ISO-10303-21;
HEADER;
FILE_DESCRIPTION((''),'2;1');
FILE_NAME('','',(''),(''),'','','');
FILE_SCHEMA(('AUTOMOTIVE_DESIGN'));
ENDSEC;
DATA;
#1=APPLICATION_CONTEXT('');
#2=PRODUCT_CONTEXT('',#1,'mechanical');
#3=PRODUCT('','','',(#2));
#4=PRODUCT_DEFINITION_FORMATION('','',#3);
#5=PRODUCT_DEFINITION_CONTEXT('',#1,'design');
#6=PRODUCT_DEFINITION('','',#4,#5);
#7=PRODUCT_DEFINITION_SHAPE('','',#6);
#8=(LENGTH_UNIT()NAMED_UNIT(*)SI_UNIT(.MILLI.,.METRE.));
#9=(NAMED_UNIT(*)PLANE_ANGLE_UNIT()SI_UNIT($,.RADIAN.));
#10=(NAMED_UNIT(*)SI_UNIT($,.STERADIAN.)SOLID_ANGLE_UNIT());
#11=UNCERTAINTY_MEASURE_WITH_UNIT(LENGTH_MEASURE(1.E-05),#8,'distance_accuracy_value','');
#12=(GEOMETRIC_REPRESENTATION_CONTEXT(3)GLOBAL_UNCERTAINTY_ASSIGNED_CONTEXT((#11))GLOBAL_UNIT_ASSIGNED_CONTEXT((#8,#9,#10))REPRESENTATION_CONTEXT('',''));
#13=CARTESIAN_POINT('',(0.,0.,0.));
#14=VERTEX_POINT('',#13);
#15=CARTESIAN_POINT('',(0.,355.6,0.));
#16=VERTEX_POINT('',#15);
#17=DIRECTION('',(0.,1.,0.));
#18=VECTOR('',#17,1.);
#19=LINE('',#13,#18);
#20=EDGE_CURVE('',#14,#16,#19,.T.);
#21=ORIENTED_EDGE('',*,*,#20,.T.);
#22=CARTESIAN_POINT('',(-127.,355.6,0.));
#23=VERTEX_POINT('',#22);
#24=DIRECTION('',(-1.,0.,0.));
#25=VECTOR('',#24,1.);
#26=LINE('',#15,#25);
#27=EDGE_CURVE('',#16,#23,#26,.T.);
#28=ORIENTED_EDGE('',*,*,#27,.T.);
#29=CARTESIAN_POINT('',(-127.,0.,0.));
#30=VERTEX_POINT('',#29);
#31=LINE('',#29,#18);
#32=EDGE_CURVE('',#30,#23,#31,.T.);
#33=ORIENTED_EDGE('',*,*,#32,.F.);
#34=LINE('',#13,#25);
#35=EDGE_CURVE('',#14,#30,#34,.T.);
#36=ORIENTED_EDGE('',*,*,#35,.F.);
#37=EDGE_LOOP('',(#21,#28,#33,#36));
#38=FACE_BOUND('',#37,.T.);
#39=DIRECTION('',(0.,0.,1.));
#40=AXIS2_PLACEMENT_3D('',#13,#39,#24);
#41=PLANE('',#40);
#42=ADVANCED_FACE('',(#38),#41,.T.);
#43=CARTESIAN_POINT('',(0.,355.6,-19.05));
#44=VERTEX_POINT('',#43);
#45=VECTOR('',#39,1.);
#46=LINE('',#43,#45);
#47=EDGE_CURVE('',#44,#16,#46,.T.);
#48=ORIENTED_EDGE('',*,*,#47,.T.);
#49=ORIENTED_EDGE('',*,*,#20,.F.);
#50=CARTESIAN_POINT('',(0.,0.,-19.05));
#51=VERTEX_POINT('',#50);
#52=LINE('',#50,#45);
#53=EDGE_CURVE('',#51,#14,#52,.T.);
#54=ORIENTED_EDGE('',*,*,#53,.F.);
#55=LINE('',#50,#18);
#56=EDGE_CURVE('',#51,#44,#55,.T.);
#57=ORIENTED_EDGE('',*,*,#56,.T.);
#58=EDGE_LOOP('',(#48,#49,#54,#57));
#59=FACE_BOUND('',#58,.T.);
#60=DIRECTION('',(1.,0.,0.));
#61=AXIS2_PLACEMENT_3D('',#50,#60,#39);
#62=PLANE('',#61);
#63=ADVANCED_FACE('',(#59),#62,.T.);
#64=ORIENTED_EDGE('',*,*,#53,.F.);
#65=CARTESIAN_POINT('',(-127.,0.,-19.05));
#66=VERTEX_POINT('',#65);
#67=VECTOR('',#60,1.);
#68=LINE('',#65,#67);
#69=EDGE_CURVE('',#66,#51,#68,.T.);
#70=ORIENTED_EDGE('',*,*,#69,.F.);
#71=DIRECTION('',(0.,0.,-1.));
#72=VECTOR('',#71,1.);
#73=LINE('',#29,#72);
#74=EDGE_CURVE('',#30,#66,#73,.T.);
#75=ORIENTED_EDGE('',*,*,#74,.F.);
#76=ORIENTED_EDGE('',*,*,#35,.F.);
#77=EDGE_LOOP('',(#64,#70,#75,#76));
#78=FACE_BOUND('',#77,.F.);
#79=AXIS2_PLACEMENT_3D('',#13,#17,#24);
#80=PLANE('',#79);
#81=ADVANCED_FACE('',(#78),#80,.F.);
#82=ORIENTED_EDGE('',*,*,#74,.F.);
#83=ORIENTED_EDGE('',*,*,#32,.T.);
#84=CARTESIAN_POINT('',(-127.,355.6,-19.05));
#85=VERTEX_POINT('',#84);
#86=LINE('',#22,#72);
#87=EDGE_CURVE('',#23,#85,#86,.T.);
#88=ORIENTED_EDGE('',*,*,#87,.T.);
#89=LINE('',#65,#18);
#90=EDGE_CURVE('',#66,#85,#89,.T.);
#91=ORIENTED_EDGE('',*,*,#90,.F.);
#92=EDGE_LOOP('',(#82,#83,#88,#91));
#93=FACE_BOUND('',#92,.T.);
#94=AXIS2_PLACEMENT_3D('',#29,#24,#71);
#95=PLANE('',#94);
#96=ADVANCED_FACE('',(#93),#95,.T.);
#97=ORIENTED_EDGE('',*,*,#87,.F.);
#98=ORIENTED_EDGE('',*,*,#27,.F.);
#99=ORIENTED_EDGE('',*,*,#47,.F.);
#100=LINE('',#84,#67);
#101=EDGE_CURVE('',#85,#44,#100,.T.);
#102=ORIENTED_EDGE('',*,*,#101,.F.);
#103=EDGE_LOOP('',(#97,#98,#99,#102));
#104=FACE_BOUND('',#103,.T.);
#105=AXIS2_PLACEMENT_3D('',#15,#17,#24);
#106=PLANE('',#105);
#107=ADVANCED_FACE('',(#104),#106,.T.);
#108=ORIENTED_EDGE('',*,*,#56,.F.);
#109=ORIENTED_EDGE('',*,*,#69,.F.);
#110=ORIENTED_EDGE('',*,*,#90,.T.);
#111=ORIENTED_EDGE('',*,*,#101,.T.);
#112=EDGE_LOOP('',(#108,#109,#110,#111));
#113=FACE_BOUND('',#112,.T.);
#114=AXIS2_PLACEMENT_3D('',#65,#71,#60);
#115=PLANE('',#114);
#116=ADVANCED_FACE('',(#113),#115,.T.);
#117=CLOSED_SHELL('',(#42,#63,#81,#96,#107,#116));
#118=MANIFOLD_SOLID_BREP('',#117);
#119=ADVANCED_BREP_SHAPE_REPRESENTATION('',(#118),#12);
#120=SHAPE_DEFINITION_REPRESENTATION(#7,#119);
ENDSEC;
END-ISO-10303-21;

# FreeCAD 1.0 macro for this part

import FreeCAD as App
import Part
import Sketcher
from FreeCAD import Vector
Q = App.Units.Quantity


def add_polygon(sketch, points):
    """Adds a closed chain of lines whose ends are joined by coincident constraints."""
    first, n = sketch.GeometryCount, len(points)
    for a, b in zip(points, points[1:] + points[:1]):
        sketch.addGeometry(Part.LineSegment(App.Vector(*a, 0), App.Vector(*b, 0)), False)
    for i in range(n):
        sketch.addConstraint(Sketcher.Constraint("Coincident", first + i, 2, first + (i + 1) % n, 1))

doc = App.newDocument("Part")
params = doc.addObject("Spreadsheet::Sheet", "Params")
for row, (alias, value) in enumerate([
    ("sketch1_width", "5 in"),
    ("sketch1_height", "0.75 in"),
    ("pad1_length", "14 in"),
], start=1):
    params.set(f"A{row}", alias)
    params.set(f"B{row}", "=" + value)
    params.setAlias(f"B{row}", alias)

body = doc.addObject("PartDesign::Body", "Body")

# Sketch on XZ plane
sketch1 = doc.addObject("Sketcher::SketchObject", "Sketch")
body.addObject(sketch1)
sketch1.AttachmentSupport = (doc.XZ_Plane, [""])
sketch1.MapMode = "FlatFace"
add_polygon(sketch1, [(-127, 0), (0, 0), (0, -19), (-127, -19)])  # lines 0-3
sketch1.addConstraint(Sketcher.Constraint("Horizontal", 0))
sketch1.addConstraint(Sketcher.Constraint("Vertical", 1))
sketch1.addConstraint(Sketcher.Constraint("Horizontal", 2))
sketch1.addConstraint(Sketcher.Constraint("Vertical", 3))
sketch1.addConstraint(Sketcher.Constraint("Coincident", 0, 2, -1, 1))
sketch1.addConstraint(Sketcher.Constraint("DistanceX", 0, 1, 0, 2, Q("5 in")))
sketch1.addConstraint(Sketcher.Constraint("DistanceY", 1, 2, 1, 1, Q("0.75 in")))
sketch1.setExpression("Constraints[9]", "Params.sketch1_width")
sketch1.setExpression("Constraints[10]", "Params.sketch1_height")
pad1 = doc.addObject("PartDesign::Pad", "Pad")
body.addObject(pad1)
pad1.Profile = sketch1
pad1.setExpression("Length", "Params.pad1_length")
pad1.Reversed = True

doc.recompute()
